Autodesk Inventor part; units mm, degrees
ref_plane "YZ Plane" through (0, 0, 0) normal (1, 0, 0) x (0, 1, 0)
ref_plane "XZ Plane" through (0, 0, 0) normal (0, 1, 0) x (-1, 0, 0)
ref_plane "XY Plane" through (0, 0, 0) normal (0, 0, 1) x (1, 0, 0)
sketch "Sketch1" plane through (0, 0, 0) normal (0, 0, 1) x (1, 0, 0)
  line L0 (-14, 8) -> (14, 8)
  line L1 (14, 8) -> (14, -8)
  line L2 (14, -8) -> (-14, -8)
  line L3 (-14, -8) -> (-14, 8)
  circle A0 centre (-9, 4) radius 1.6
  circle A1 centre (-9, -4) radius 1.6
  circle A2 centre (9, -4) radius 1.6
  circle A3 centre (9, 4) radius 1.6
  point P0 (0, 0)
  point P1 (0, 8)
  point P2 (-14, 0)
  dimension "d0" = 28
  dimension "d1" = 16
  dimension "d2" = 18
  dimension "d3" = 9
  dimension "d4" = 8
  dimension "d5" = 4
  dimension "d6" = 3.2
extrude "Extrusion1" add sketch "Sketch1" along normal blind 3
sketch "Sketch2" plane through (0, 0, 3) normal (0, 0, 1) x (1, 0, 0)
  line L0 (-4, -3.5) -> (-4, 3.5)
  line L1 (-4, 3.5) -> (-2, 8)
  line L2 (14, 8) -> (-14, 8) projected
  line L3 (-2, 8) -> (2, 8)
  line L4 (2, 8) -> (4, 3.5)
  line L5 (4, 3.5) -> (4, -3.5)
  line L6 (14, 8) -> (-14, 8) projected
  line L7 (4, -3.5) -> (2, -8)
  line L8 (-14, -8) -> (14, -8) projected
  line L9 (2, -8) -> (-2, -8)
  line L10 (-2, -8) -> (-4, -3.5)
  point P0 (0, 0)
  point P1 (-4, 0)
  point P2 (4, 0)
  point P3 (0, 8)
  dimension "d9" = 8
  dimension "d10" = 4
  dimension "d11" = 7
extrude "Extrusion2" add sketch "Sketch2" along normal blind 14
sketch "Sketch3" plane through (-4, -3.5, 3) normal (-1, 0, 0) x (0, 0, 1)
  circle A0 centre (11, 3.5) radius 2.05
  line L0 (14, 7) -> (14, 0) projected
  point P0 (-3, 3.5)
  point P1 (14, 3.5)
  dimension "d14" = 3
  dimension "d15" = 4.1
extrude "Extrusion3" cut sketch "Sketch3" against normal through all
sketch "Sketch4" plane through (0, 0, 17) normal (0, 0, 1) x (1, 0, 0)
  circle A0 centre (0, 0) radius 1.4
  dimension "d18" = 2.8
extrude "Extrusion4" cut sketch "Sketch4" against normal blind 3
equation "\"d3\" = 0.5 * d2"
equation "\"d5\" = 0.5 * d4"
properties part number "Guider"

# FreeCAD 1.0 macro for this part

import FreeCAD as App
import Part
import Sketcher

doc = App.newDocument("Part")
body = doc.addObject("PartDesign::Body", "Body")

# Sketch on XY plane
sketch1 = body.newObject("Sketcher::SketchObject", "Sketch")
sketch1.AttachmentSupport = (doc.getObject("XY_Plane"), [""])
sketch1.MapMode = "FlatFace"
sketch1.addGeometry(Part.LineSegment(App.Vector(14, 8, 0), App.Vector(-14, 8, 0)), False)
sketch1.addGeometry(Part.LineSegment(App.Vector(-14, 8, 0), App.Vector(-14, -8, 0)), False)
sketch1.addGeometry(Part.LineSegment(App.Vector(-14, -8, 0), App.Vector(14, -8, 0)), False)
sketch1.addGeometry(Part.LineSegment(App.Vector(14, -8, 0), App.Vector(14, 8, 0)), False)
sketch1.addGeometry(Part.Circle(App.Vector(-9, -4, 0), App.Vector(0, 0, 1), 1.6), False)
sketch1.addGeometry(Part.Circle(App.Vector(9, -4, 0), App.Vector(0, 0, 1), 1.6), False)
sketch1.addGeometry(Part.Circle(App.Vector(-9, 4, 0), App.Vector(0, 0, 1), 1.6), False)
sketch1.addGeometry(Part.Circle(App.Vector(9, 4, 0), App.Vector(0, 0, 1), 1.6), False)
sketch1.addConstraint(Sketcher.Constraint("Coincident", 0, 2, 1, 1))
sketch1.addConstraint(Sketcher.Constraint("Coincident", 1, 2, 2, 1))
sketch1.addConstraint(Sketcher.Constraint("Coincident", 2, 2, 3, 1))
sketch1.addConstraint(Sketcher.Constraint("Coincident", 3, 2, 0, 1))
sketch1.addConstraint(Sketcher.Constraint("Horizontal", 0))
sketch1.addConstraint(Sketcher.Constraint("Vertical", 1))
sketch1.addConstraint(Sketcher.Constraint("Horizontal", 2))
sketch1.addConstraint(Sketcher.Constraint("Vertical", 3))
sketch1.addConstraint(Sketcher.Constraint("Equal", 4, 5))
sketch1.addConstraint(Sketcher.Constraint("Equal", 5, 6))
sketch1.addConstraint(Sketcher.Constraint("Equal", 6, 7))
sketch1.addConstraint(Sketcher.Constraint("Symmetric", 5, 3, 6, 3, -1, 1))
sketch1.addConstraint(Sketcher.Constraint("Symmetric", 4, 3, 7, 3, -1, 1))
sketch1.addConstraint(Sketcher.Constraint("Symmetric", 0, 2, 2, 2, -1, 1))
sketch1.addConstraint(Sketcher.Constraint("Symmetric", 4, 3, 5, 3, -2))
sketch1.addConstraint(Sketcher.Constraint("Diameter", 4, 3.2))
sketch1.addConstraint(Sketcher.Constraint("DistanceX", 0, 2, 0, 1, 28.0))
sketch1.addConstraint(Sketcher.Constraint("DistanceY", 1, 2, 1, 1, 16.0))
sketch1.addConstraint(Sketcher.Constraint("DistanceX", 4, 3, -1, 1, 9.0))
sketch1.addConstraint(Sketcher.Constraint("DistanceY", 4, 3, -1, 1, 4.0))
pad1 = body.newObject("PartDesign::Pad", "Pad")
pad1.Profile = sketch1
pad1.Length = 3

# Sketch on XY plane
sketch2 = body.newObject("Sketcher::SketchObject", "Sketch001")
sketch2.AttachmentSupport = (doc.getObject("XY_Plane"), [""])
sketch2.MapMode = "FlatFace"
sketch2.AttachmentOffset = App.Placement(App.Vector(0, 0, 3), App.Rotation())
sketch2.addGeometry(Part.LineSegment(App.Vector(-4, 3.5, 0), App.Vector(-4, -3.5, 0)), False)
sketch2.addGeometry(Part.LineSegment(App.Vector(-4, -3.5, 0), App.Vector(-2, -8, 0)), False)
sketch2.addGeometry(Part.LineSegment(App.Vector(-2, -8, 0), App.Vector(2, -8, 0)), False)
sketch2.addGeometry(Part.LineSegment(App.Vector(2, -8, 0), App.Vector(4, -3.5, 0)), False)
sketch2.addGeometry(Part.LineSegment(App.Vector(4, -3.5, 0), App.Vector(4, 3.5, 0)), False)
sketch2.addGeometry(Part.LineSegment(App.Vector(4, 3.5, 0), App.Vector(2, 8, 0)), False)
sketch2.addGeometry(Part.LineSegment(App.Vector(2, 8, 0), App.Vector(-2, 8, 0)), False)
sketch2.addGeometry(Part.LineSegment(App.Vector(-2, 8, 0), App.Vector(-4, 3.5, 0)), False)
sketch2.addConstraint(Sketcher.Constraint("Coincident", 0, 2, 1, 1))
sketch2.addConstraint(Sketcher.Constraint("Coincident", 1, 2, 2, 1))
sketch2.addConstraint(Sketcher.Constraint("Coincident", 2, 2, 3, 1))
sketch2.addConstraint(Sketcher.Constraint("Coincident", 3, 2, 4, 1))
sketch2.addConstraint(Sketcher.Constraint("Coincident", 4, 2, 5, 1))
sketch2.addConstraint(Sketcher.Constraint("Coincident", 5, 2, 6, 1))
sketch2.addConstraint(Sketcher.Constraint("Coincident", 6, 2, 7, 1))
sketch2.addConstraint(Sketcher.Constraint("Coincident", 7, 2, 0, 1))
sketch2.addConstraint(Sketcher.Constraint("Vertical", 0))
sketch2.addConstraint(Sketcher.Constraint("Horizontal", 2))
sketch2.addConstraint(Sketcher.Constraint("Vertical", 4))
sketch2.addConstraint(Sketcher.Constraint("Horizontal", 6))
sketch2.addConstraint(Sketcher.Constraint("Symmetric", 0, 2, 4, 2, -1, 1))
sketch2.addConstraint(Sketcher.Constraint("Symmetric", 1, 2, 5, 2, -1, 1))
sketch2.addConstraint(Sketcher.Constraint("Parallel", 3, 7))
sketch2.addConstraint(Sketcher.Constraint("Horizontal", 0, 2, 3, 2))
sketch2.addConstraint(Sketcher.Constraint("Horizontal", 4, 2, 7, 2))
sketch2.addConstraint(Sketcher.Constraint("Vertical", 2, 2, 5, 2))
sketch2.addConstraint(Sketcher.Constraint("DistanceX", 2, 1, 2, 2, 4.0))
sketch2.addConstraint(Sketcher.Constraint("DistanceY", 0, 2, 0, 1, 7.0))
sketch2.addConstraint(Sketcher.Constraint("DistanceX", 0, 2, -1, 1, 4.0))
sketch2.addConstraint(Sketcher.Constraint("DistanceY", 1, 2, -1, 1, 8.0))
pad2 = body.newObject("PartDesign::Pad", "Pad001")
pad2.Profile = sketch2
pad2.Length = 14

# Sketch on YZ plane
sketch3 = body.newObject("Sketcher::SketchObject", "Sketch002")
sketch3.AttachmentSupport = (doc.getObject("YZ_Plane"), [""])
sketch3.MapMode = "FlatFace"
sketch3.AttachmentOffset = App.Placement(App.Vector(0, 0, -4), App.Rotation())
sketch3.addGeometry(Part.Circle(App.Vector(0, 14, 0), App.Vector(0, 0, 1), 2), False)
sketch3.addConstraint(Sketcher.Constraint("PointOnObject", 0, 3, -2))
sketch3.addConstraint(Sketcher.Constraint("Diameter", 0, 4.1))
sketch3.addConstraint(Sketcher.Constraint("DistanceY", -1, 1, 0, 3, 14.0))
pocket1 = body.newObject("PartDesign::Pocket", "Pocket")
pocket1.Profile = sketch3
pocket1.Type = "ThroughAll"
pocket1.Reversed = True

# Sketch on XY plane
sketch4 = body.newObject("Sketcher::SketchObject", "Sketch003")
sketch4.AttachmentSupport = (doc.getObject("XY_Plane"), [""])
sketch4.MapMode = "FlatFace"
sketch4.AttachmentOffset = App.Placement(App.Vector(0, 0, 17), App.Rotation())
sketch4.addGeometry(Part.Circle(App.Vector(0, 0, 0), App.Vector(0, 0, 1), 1.4), False)
sketch4.addConstraint(Sketcher.Constraint("Coincident", 0, 3, -1, 1))
sketch4.addConstraint(Sketcher.Constraint("Diameter", 0, 2.8))
pocket2 = body.newObject("PartDesign::Pocket", "Pocket001")
pocket2.Profile = sketch4
pocket2.Length = 3

doc.recompute()
